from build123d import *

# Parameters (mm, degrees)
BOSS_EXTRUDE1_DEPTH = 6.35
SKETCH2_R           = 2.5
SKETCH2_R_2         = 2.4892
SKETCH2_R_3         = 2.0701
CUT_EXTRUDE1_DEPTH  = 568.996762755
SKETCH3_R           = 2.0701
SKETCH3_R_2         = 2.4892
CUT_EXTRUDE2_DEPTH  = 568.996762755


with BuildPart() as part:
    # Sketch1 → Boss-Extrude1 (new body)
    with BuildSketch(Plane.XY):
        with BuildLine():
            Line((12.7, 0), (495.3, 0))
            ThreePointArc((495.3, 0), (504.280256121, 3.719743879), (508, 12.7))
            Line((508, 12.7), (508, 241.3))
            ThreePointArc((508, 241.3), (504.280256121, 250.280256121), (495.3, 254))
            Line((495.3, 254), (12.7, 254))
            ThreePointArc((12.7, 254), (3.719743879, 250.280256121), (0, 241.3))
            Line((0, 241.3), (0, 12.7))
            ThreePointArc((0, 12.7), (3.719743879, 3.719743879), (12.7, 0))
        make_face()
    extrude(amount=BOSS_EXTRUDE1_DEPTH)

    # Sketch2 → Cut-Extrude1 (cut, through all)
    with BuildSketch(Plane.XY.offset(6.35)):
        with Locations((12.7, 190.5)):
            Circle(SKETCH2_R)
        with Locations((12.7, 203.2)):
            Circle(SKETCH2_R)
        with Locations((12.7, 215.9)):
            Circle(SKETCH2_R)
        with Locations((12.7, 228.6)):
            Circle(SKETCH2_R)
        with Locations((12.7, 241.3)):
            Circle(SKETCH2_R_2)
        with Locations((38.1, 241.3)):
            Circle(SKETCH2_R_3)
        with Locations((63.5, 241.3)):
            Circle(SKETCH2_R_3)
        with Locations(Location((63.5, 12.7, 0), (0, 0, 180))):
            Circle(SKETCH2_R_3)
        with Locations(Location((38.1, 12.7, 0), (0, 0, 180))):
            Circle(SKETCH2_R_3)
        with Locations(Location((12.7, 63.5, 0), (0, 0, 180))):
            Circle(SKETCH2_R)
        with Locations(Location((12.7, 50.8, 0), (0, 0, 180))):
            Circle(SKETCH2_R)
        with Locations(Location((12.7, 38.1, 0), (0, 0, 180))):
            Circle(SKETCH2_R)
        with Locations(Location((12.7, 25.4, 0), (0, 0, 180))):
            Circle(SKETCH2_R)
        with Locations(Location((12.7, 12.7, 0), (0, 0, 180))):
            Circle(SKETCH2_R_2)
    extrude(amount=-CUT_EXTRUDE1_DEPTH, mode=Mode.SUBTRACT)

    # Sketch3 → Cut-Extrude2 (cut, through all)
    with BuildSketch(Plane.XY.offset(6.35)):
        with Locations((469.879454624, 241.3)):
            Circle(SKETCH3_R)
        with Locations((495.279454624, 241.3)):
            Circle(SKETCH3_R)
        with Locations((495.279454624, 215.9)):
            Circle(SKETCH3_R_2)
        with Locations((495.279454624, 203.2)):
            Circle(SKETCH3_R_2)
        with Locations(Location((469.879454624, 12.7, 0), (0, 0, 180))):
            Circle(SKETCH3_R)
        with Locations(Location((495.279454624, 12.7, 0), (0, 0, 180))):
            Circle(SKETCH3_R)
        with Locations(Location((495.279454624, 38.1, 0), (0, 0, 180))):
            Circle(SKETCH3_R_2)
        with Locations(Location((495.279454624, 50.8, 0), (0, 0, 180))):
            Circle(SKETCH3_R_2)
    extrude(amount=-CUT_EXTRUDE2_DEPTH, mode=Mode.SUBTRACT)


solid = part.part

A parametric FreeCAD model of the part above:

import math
import FreeCAD as App
import Part
import Sketcher

V = App.Vector
Q = App.Units.Quantity

doc = App.newDocument("Part")
body = doc.addObject("PartDesign::Body", "Body")

# Sketch on XY plane
sketch1 = doc.addObject("Sketcher::SketchObject", "Sketch")
body.addObject(sketch1)
sketch1.AttachmentSupport = (doc.XY_Plane, [""])
sketch1.MapMode = "FlatFace"
sketch1.addGeometry([
    Part.LineSegment(V(13, 0, 0), V(495, 0, 0)),  # 0
    Part.ArcOfCircle(Part.Circle(V(495, 13, 0), V(0, 0, 1), 13), math.radians(-90), math.radians(0)),  # 1
    Part.LineSegment(V(508, 13, 0), V(508, 241, 0)),  # 2
    Part.ArcOfCircle(Part.Circle(V(495, 241, 0), V(0, 0, 1), 13), math.radians(0), math.radians(90)),  # 3
    Part.LineSegment(V(495, 254, 0), V(13, 254, 0)),  # 4
    Part.ArcOfCircle(Part.Circle(V(13, 241, 0), V(0, 0, 1), 13), math.radians(90), math.radians(180)),  # 5
    Part.LineSegment(V(0, 241, 0), V(0, 13, 0)),  # 6
    Part.ArcOfCircle(Part.Circle(V(13, 13, 0), V(0, 0, 1), 13), math.radians(180), math.radians(270)),  # 7
], False)
sketch1.addConstraint([
    Sketcher.Constraint("Tangent", 0, 2, 1, 1),
    Sketcher.Constraint("Tangent", 1, 2, 2, 1),
    Sketcher.Constraint("Tangent", 2, 2, 3, 1),
    Sketcher.Constraint("Tangent", 3, 2, 4, 1),
    Sketcher.Constraint("Tangent", 4, 2, 5, 1),
    Sketcher.Constraint("Tangent", 5, 2, 6, 1),
    Sketcher.Constraint("Tangent", 6, 2, 7, 1),
    Sketcher.Constraint("Tangent", 7, 2, 0, 1),
    Sketcher.Constraint("Horizontal", 0),
    Sketcher.Constraint("Vertical", 2),
    Sketcher.Constraint("Horizontal", 4),
    Sketcher.Constraint("Vertical", 6),
    Sketcher.Constraint("Equal", 1, 3),
    Sketcher.Constraint("Equal", 3, 5),
    Sketcher.Constraint("Equal", 5, 7),
    Sketcher.Constraint("PointOnObject", 0, 2, -1),
    Sketcher.Constraint("PointOnObject", 5, 2, -2),
    Sketcher.Constraint("Radius", 1, Q("0.5 in")),
    Sketcher.Constraint("DistanceX", 0, 1, 0, 2, Q("19 in")),
    Sketcher.Constraint("DistanceY", 2, 1, 2, 2, Q("9 in")),
])
pad1 = doc.addObject("PartDesign::Pad", "Pad")
body.addObject(pad1)
pad1.Profile = sketch1
pad1.Length = Q("0.25 in")

# Sketch on XY plane
sketch2 = doc.addObject("Sketcher::SketchObject", "Sketch001")
body.addObject(sketch2)
sketch2.AttachmentSupport = (doc.XY_Plane, [""])
sketch2.MapMode = "FlatFace"
sketch2.AttachmentOffset = App.Placement(V(0, 0, 0.25 * 25.4), App.Rotation())
sketch2.addGeometry([
    Part.Circle(V(12.7, 190.5, 0), V(0, 0, 1), 2.5),  # 0
    Part.Circle(V(12.7, 203.2, 0), V(0, 0, 1), 2.5),  # 1
    Part.Circle(V(12.7, 215.9, 0), V(0, 0, 1), 2.5),  # 2
    Part.Circle(V(12.7, 228.6, 0), V(0, 0, 1), 2.5),  # 3
    Part.Circle(V(12.7, 241.3, 0), V(0, 0, 1), 2.5),  # 4
    Part.Circle(V(38.1, 241.3, 0), V(0, 0, 1), 2.1),  # 5
    Part.Circle(V(63.5, 241.3, 0), V(0, 0, 1), 2.1),  # 6
    Part.Circle(V(63.5, 12.7, 0), V(0, 0, 1), 2.1),  # 7
    Part.Circle(V(38.1, 12.7, 0), V(0, 0, 1), 2.1),  # 8
    Part.Circle(V(12.7, 63.5, 0), V(0, 0, 1), 2.5),  # 9
    Part.Circle(V(12.7, 50.8, 0), V(0, 0, 1), 2.5),  # 10
    Part.Circle(V(12.7, 38.1, 0), V(0, 0, 1), 2.5),  # 11
    Part.Circle(V(12.7, 25.4, 0), V(0, 0, 1), 2.5),  # 12
    Part.Circle(V(12.7, 12.7, 0), V(0, 0, 1), 2.5),  # 13
], False)
sketch2.addConstraint([
    Sketcher.Constraint("Equal", 0, 1),
    Sketcher.Constraint("Equal", 1, 2),
    Sketcher.Constraint("Equal", 2, 3),
    Sketcher.Constraint("Equal", 5, 6),
    Sketcher.Constraint("Equal", 6, 7),
    Sketcher.Constraint("Equal", 7, 8),
    Sketcher.Constraint("Equal", 3, 9),
    Sketcher.Constraint("Equal", 9, 10),
    Sketcher.Constraint("Equal", 10, 11),
    Sketcher.Constraint("Equal", 11, 12),
    Sketcher.Constraint("Equal", 4, 13),
    Sketcher.Constraint("Horizontal", 4, 3, 5, 3),
    Sketcher.Constraint("Horizontal", 5, 3, 6, 3),
    Sketcher.Constraint("Horizontal", 7, 3, 8, 3),
    Sketcher.Constraint("Horizontal", 8, 3, 13, 3),
    Sketcher.Constraint("Vertical", 0, 3, 1, 3),
    Sketcher.Constraint("Vertical", 1, 3, 2, 3),
    Sketcher.Constraint("Vertical", 2, 3, 3, 3),
    Sketcher.Constraint("Vertical", 3, 3, 4, 3),
    Sketcher.Constraint("Vertical", 6, 3, 7, 3),
    Sketcher.Constraint("Vertical", 5, 3, 8, 3),
    Sketcher.Constraint("Vertical", 4, 3, 9, 3),
    Sketcher.Constraint("Vertical", 9, 3, 10, 3),
    Sketcher.Constraint("Vertical", 10, 3, 11, 3),
    Sketcher.Constraint("Vertical", 11, 3, 12, 3),
    Sketcher.Constraint("Vertical", 12, 3, 13, 3),
    Sketcher.Constraint("Diameter", 4, Q("0.196 in")),
    Sketcher.Constraint("Diameter", 5, Q("0.163 in")),
    Sketcher.Constraint("DistanceY", -1, 1, 1, 3, Q("8 in")),
    Sketcher.Constraint("DistanceY", -1, 1, 3, 3, Q("9 in")),
    Sketcher.Constraint("DistanceY", -1, 1, 10, 3, Q("2 in")),
    Sketcher.Constraint("DistanceY", -1, 1, 12, 3, Q("1 in")),
    Sketcher.Constraint("DistanceY", 0, 3, 2, 3, Q("1 in")),
    Sketcher.Constraint("DistanceY", 2, 3, 4, 3, Q("1 in")),
    Sketcher.Constraint("DistanceX", 4, 3, 5, 3, Q("1 in")),
    Sketcher.Constraint("DistanceX", 5, 3, 6, 3, Q("1 in")),
    Sketcher.Constraint("DistanceY", 7, 3, 0, 3, Q("7 in")),
    Sketcher.Constraint("DistanceY", 8, 3, 9, 3, Q("2 in")),
    Sketcher.Constraint("DistanceY", 11, 3, 9, 3, Q("1 in")),
    Sketcher.Constraint("DistanceX", -1, 1, 0, 3, Q("0.5 in")),
    Sketcher.Constraint("DistanceY", -1, 1, 0, 3, Q("7.5 in")),
    Sketcher.Constraint("Diameter", 0, Q("5 mm")),
])
pocket1 = doc.addObject("PartDesign::Pocket", "Pocket")
body.addObject(pocket1)
pocket1.Profile = sketch2
pocket1.Type = "ThroughAll"

# Sketch on XY plane
sketch3 = doc.addObject("Sketcher::SketchObject", "Sketch002")
body.addObject(sketch3)
sketch3.AttachmentSupport = (doc.XY_Plane, [""])
sketch3.MapMode = "FlatFace"
sketch3.AttachmentOffset = App.Placement(V(0, 0, 0.25 * 25.4), App.Rotation())
sketch3.addGeometry([
    Part.Circle(V(469.9, 241.3, 0), V(0, 0, 1), 2.1),  # 0
    Part.Circle(V(495.3, 241.3, 0), V(0, 0, 1), 2.1),  # 1
    Part.Circle(V(495.3, 215.9, 0), V(0, 0, 1), 2.5),  # 2
    Part.Circle(V(495.3, 203.2, 0), V(0, 0, 1), 2.5),  # 3
    Part.Circle(V(469.9, 12.7, 0), V(0, 0, 1), 2.1),  # 4
    Part.Circle(V(495.3, 12.7, 0), V(0, 0, 1), 2.1),  # 5
    Part.Circle(V(495.3, 38.1, 0), V(0, 0, 1), 2.5),  # 6
    Part.Circle(V(495.3, 50.8, 0), V(0, 0, 1), 2.5),  # 7
], False)
sketch3.addConstraint([
    Sketcher.Constraint("Equal", 0, 1),
    Sketcher.Constraint("Equal", 2, 3),
    Sketcher.Constraint("Equal", 1, 4),
    Sketcher.Constraint("Equal", 4, 5),
    Sketcher.Constraint("Equal", 3, 6),
    Sketcher.Constraint("Equal", 6, 7),
    Sketcher.Constraint("Horizontal", 0, 3, 1, 3),
    Sketcher.Constraint("Horizontal", 4, 3, 5, 3),
    Sketcher.Constraint("Vertical", 1, 3, 2, 3),
    Sketcher.Constraint("Vertical", 2, 3, 3, 3),
    Sketcher.Constraint("Vertical", 0, 3, 4, 3),
    Sketcher.Constraint("Vertical", 3, 3, 5, 3),
    Sketcher.Constraint("Vertical", 5, 3, 6, 3),
    Sketcher.Constraint("Vertical", 6, 3, 7, 3),
    Sketcher.Constraint("Diameter", 0, Q("0.163 in")),
    Sketcher.Constraint("Diameter", 2, Q("0.196 in")),
    Sketcher.Constraint("DistanceY", -1, 1, 3, 3, Q("8 in")),
    Sketcher.Constraint("DistanceY", -1, 1, 7, 3, Q("2 in")),
    Sketcher.Constraint("DistanceX", 0, 3, 1, 3, Q("1 in")),
    Sketcher.Constraint("DistanceY", 2, 3, 1, 3, Q("1 in")),
    Sketcher.Constraint("DistanceY", 4, 3, 2, 3, Q("8 in")),
    Sketcher.Constraint("DistanceY", 5, 3, 6, 3, Q("1 in")),
    Sketcher.Constraint("DistanceY", -1, 1, 0, 3, Q("9.5 in")),
    Sketcher.Constraint("DistanceX", -1, 1, 0, 3, Q("469.879455 mm")),
])
pocket2 = doc.addObject("PartDesign::Pocket", "Pocket001")
body.addObject(pocket2)
pocket2.Profile = sketch3
pocket2.Type = "ThroughAll"

doc.recompute()
